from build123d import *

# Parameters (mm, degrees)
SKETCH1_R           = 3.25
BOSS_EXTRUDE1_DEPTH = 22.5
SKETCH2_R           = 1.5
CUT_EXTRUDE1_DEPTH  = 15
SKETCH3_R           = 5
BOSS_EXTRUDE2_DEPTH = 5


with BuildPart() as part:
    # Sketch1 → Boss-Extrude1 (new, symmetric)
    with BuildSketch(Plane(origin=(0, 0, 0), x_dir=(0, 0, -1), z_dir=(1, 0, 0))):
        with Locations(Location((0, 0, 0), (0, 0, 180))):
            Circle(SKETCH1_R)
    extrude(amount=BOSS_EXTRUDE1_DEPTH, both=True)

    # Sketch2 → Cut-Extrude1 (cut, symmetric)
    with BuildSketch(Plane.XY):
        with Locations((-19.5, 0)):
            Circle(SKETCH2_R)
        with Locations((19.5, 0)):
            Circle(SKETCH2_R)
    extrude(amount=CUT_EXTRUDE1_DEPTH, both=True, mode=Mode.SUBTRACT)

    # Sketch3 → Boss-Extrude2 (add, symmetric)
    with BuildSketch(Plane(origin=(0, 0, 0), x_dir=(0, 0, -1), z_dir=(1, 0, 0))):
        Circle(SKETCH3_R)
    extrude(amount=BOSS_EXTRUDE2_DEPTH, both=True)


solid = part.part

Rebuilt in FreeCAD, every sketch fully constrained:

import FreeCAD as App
import Part
import Sketcher
from FreeCAD import Vector

doc = App.newDocument("Part")
body = doc.addObject("PartDesign::Body", "Body")

# Sketch on YZ plane
sketch1 = body.newObject("Sketcher::SketchObject", "Sketch")
sketch1.AttachmentSupport = (doc.getObject("YZ_Plane"), [""])
sketch1.MapMode = "FlatFace"
sketch1.addGeometry(Part.Circle(Vector(0, 0, 0), Vector(0, 0, 1), 3.2), False)
sketch1.addConstraint([
    Sketcher.Constraint("Coincident", 0, 3, -1, 1),
    Sketcher.Constraint("Diameter", 0, 6.5),
])
pad1 = body.newObject("PartDesign::Pad", "Pad")
pad1.Profile = sketch1
pad1.Length = 45
pad1.Midplane = True

# Sketch on XY plane
sketch2 = body.newObject("Sketcher::SketchObject", "Sketch001")
sketch2.AttachmentSupport = (doc.getObject("XY_Plane"), [""])
sketch2.MapMode = "FlatFace"
sketch2.addGeometry([
    Part.Circle(Vector(-19.5, 0, 0), Vector(0, 0, 1), 1.5),
    Part.Circle(Vector(19.5, 0, 0), Vector(0, 0, 1), 1.5),
], False)
sketch2.addConstraint([
    Sketcher.Constraint("Equal", 0, 1),
    Sketcher.Constraint("Symmetric", 0, 3, 1, 3, -1, 1),
    Sketcher.Constraint("PointOnObject", 0, 3, -1),
    Sketcher.Constraint("Diameter", 0, 3.0),
    Sketcher.Constraint("DistanceX", 0, 3, 1, 3, 39.0),
])
pocket1 = body.newObject("PartDesign::Pocket", "Pocket")
pocket1.Profile = sketch2
pocket1.Length = 30
pocket1.Midplane = True

# Sketch on YZ plane
sketch3 = body.newObject("Sketcher::SketchObject", "Sketch002")
sketch3.AttachmentSupport = (doc.getObject("YZ_Plane"), [""])
sketch3.MapMode = "FlatFace"
sketch3.addGeometry(Part.Circle(Vector(0, 0, 0), Vector(0, 0, 1), 5), False)
sketch3.addConstraint([
    Sketcher.Constraint("Coincident", 0, 3, -1, 1),
    Sketcher.Constraint("Diameter", 0, 10.0),
])
pad2 = body.newObject("PartDesign::Pad", "Pad001")
pad2.Profile = sketch3
pad2.Length = 10
pad2.Midplane = True

doc.recompute()
